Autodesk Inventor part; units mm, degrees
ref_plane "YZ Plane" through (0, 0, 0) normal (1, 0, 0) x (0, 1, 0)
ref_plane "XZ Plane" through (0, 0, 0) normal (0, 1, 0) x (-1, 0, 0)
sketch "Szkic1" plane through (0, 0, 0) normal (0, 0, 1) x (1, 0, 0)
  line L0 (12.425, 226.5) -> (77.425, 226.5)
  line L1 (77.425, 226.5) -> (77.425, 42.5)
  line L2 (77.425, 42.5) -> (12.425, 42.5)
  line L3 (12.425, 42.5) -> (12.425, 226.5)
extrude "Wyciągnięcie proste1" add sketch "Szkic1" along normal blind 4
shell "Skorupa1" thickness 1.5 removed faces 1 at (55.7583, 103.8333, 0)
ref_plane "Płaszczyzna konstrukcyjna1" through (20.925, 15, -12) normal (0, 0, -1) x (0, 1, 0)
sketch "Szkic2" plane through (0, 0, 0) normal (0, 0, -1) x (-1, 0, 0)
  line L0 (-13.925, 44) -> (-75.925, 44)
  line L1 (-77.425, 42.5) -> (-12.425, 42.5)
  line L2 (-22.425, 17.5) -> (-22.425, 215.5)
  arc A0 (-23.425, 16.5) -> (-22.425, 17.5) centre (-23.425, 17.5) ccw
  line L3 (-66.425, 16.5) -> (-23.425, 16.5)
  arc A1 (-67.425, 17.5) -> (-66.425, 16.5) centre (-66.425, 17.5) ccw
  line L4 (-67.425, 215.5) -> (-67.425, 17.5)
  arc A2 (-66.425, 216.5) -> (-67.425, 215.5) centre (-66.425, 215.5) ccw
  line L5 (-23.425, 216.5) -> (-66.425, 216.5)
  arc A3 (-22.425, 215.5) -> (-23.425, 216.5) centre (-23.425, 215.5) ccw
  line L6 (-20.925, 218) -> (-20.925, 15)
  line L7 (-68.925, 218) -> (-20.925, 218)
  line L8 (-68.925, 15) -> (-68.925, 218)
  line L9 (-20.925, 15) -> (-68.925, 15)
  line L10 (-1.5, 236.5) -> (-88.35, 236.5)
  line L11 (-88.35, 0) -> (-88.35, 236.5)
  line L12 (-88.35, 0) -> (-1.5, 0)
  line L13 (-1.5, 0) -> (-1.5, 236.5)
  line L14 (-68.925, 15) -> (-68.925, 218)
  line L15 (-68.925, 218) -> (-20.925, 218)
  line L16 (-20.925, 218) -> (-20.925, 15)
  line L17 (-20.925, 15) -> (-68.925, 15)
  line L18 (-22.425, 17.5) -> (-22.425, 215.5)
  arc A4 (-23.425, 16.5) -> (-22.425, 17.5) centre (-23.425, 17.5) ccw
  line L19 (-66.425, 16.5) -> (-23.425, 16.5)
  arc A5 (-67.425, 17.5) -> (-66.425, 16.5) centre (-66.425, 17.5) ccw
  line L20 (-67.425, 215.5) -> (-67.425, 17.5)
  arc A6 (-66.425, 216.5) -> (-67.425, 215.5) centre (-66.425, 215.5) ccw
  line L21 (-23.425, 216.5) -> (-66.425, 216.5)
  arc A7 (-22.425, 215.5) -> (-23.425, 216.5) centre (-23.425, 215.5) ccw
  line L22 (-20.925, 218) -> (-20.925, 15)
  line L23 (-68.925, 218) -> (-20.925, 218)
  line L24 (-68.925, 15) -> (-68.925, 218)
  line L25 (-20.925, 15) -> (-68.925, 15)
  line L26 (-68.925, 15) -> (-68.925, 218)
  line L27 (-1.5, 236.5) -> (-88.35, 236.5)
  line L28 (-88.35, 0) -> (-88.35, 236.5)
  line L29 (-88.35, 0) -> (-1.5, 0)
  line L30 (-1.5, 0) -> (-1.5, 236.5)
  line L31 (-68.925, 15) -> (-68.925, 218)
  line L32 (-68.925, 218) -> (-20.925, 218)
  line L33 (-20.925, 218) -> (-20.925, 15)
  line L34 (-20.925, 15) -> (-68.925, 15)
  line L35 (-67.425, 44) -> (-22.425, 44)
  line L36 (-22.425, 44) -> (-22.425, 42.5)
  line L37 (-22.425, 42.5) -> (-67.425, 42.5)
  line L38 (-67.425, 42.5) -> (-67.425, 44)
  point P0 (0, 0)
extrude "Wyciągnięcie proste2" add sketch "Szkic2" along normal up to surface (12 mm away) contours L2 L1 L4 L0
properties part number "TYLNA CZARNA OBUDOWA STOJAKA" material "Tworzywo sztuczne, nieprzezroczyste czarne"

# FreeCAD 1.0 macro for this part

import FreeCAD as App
import Part
import Sketcher
Q = App.Units.Quantity


def faces_at(feature, points):
    """Names of the faces that lie closest to the given points."""
    faces = feature.Shape.Faces
    near = lambda p: min(range(len(faces)), key=lambda i: faces[i].distToShape(Part.Vertex(*p))[0])
    return sorted({f"Face{near(p) + 1}" for p in points})

doc = App.newDocument("Part")
body = doc.addObject("PartDesign::Body", "Body")

# Sketch on XY plane
sketch1 = doc.addObject("Sketcher::SketchObject", "Sketch")
body.addObject(sketch1)
sketch1.AttachmentSupport = (doc.XY_Plane, [""])
sketch1.MapMode = "FlatFace"
sketch1.addGeometry([
    Part.LineSegment(App.Vector(77.425, 226.5, 0), App.Vector(12.425, 226.5, 0)),
    Part.LineSegment(App.Vector(12.425, 226.5, 0), App.Vector(12.425, 42.5, 0)),
    Part.LineSegment(App.Vector(12.425, 42.5, 0), App.Vector(77.425, 42.5, 0)),
    Part.LineSegment(App.Vector(77.425, 42.5, 0), App.Vector(77.425, 226.5, 0)),
], False)
sketch1.addConstraint([
    Sketcher.Constraint("Coincident", 0, 2, 1, 1),
    Sketcher.Constraint("Coincident", 1, 2, 2, 1),
    Sketcher.Constraint("Coincident", 2, 2, 3, 1),
    Sketcher.Constraint("Coincident", 3, 2, 0, 1),
    Sketcher.Constraint("Horizontal", 0),
    Sketcher.Constraint("Vertical", 1),
    Sketcher.Constraint("Horizontal", 2),
    Sketcher.Constraint("Vertical", 3),
    Sketcher.Constraint("DistanceX", 0, 2, 0, 1, Q("65 mm")),
    Sketcher.Constraint("DistanceY", 1, 2, 1, 1, Q("184 mm")),
    Sketcher.Constraint("DistanceY", -1, 1, 0, 2, Q("226.5 mm")),
    Sketcher.Constraint("DistanceX", -1, 1, 0, 2, Q("12.425 mm")),
])
pad1 = doc.addObject("PartDesign::Pad", "Pad")
body.addObject(pad1)
pad1.Profile = sketch1
pad1.Length = 4
doc.recompute()

thickness = doc.addObject("PartDesign::Thickness", "Thickness")
body.addObject(thickness)
thickness.Base = (pad1, faces_at(pad1, [(55.758, 103.833, 0)]))
thickness.Value = 1.5
thickness.Reversed = True
thickness.Join = "Intersection"

# Sketch on XY plane
sketch2 = doc.addObject("Sketcher::SketchObject", "Sketch001")
body.addObject(sketch2)
sketch2.AttachmentSupport = (doc.XY_Plane, [""])
sketch2.MapMode = "FlatFace"
sketch2.addGeometry([
    Part.LineSegment(App.Vector(22.425, 42.5, 0), App.Vector(22.425, 44, 0)),
    Part.LineSegment(App.Vector(22.425, 44, 0), App.Vector(67.425, 44, 0)),
    Part.LineSegment(App.Vector(67.425, 44, 0), App.Vector(67.425, 42.5, 0)),
    Part.LineSegment(App.Vector(67.425, 42.5, 0), App.Vector(22.425, 42.5, 0)),
], False)
sketch2.addConstraint([
    Sketcher.Constraint("Coincident", 0, 2, 1, 1),
    Sketcher.Constraint("Coincident", 1, 2, 2, 1),
    Sketcher.Constraint("Coincident", 2, 2, 3, 1),
    Sketcher.Constraint("Coincident", 3, 2, 0, 1),
    Sketcher.Constraint("Vertical", 0),
    Sketcher.Constraint("Horizontal", 1),
    Sketcher.Constraint("Vertical", 2),
    Sketcher.Constraint("Horizontal", 3),
    Sketcher.Constraint("DistanceX", 1, 1, 1, 2, Q("45 mm")),
    Sketcher.Constraint("DistanceY", 0, 1, 0, 2, Q("1.5 mm")),
    Sketcher.Constraint("DistanceY", -1, 1, 0, 2, Q("44 mm")),
    Sketcher.Constraint("DistanceX", -1, 1, 0, 2, Q("22.425 mm")),
])
pad2 = doc.addObject("PartDesign::Pad", "Pad001")
body.addObject(pad2)
pad2.Profile = sketch2
pad2.Length = 12
pad2.Reversed = True

doc.recompute()
